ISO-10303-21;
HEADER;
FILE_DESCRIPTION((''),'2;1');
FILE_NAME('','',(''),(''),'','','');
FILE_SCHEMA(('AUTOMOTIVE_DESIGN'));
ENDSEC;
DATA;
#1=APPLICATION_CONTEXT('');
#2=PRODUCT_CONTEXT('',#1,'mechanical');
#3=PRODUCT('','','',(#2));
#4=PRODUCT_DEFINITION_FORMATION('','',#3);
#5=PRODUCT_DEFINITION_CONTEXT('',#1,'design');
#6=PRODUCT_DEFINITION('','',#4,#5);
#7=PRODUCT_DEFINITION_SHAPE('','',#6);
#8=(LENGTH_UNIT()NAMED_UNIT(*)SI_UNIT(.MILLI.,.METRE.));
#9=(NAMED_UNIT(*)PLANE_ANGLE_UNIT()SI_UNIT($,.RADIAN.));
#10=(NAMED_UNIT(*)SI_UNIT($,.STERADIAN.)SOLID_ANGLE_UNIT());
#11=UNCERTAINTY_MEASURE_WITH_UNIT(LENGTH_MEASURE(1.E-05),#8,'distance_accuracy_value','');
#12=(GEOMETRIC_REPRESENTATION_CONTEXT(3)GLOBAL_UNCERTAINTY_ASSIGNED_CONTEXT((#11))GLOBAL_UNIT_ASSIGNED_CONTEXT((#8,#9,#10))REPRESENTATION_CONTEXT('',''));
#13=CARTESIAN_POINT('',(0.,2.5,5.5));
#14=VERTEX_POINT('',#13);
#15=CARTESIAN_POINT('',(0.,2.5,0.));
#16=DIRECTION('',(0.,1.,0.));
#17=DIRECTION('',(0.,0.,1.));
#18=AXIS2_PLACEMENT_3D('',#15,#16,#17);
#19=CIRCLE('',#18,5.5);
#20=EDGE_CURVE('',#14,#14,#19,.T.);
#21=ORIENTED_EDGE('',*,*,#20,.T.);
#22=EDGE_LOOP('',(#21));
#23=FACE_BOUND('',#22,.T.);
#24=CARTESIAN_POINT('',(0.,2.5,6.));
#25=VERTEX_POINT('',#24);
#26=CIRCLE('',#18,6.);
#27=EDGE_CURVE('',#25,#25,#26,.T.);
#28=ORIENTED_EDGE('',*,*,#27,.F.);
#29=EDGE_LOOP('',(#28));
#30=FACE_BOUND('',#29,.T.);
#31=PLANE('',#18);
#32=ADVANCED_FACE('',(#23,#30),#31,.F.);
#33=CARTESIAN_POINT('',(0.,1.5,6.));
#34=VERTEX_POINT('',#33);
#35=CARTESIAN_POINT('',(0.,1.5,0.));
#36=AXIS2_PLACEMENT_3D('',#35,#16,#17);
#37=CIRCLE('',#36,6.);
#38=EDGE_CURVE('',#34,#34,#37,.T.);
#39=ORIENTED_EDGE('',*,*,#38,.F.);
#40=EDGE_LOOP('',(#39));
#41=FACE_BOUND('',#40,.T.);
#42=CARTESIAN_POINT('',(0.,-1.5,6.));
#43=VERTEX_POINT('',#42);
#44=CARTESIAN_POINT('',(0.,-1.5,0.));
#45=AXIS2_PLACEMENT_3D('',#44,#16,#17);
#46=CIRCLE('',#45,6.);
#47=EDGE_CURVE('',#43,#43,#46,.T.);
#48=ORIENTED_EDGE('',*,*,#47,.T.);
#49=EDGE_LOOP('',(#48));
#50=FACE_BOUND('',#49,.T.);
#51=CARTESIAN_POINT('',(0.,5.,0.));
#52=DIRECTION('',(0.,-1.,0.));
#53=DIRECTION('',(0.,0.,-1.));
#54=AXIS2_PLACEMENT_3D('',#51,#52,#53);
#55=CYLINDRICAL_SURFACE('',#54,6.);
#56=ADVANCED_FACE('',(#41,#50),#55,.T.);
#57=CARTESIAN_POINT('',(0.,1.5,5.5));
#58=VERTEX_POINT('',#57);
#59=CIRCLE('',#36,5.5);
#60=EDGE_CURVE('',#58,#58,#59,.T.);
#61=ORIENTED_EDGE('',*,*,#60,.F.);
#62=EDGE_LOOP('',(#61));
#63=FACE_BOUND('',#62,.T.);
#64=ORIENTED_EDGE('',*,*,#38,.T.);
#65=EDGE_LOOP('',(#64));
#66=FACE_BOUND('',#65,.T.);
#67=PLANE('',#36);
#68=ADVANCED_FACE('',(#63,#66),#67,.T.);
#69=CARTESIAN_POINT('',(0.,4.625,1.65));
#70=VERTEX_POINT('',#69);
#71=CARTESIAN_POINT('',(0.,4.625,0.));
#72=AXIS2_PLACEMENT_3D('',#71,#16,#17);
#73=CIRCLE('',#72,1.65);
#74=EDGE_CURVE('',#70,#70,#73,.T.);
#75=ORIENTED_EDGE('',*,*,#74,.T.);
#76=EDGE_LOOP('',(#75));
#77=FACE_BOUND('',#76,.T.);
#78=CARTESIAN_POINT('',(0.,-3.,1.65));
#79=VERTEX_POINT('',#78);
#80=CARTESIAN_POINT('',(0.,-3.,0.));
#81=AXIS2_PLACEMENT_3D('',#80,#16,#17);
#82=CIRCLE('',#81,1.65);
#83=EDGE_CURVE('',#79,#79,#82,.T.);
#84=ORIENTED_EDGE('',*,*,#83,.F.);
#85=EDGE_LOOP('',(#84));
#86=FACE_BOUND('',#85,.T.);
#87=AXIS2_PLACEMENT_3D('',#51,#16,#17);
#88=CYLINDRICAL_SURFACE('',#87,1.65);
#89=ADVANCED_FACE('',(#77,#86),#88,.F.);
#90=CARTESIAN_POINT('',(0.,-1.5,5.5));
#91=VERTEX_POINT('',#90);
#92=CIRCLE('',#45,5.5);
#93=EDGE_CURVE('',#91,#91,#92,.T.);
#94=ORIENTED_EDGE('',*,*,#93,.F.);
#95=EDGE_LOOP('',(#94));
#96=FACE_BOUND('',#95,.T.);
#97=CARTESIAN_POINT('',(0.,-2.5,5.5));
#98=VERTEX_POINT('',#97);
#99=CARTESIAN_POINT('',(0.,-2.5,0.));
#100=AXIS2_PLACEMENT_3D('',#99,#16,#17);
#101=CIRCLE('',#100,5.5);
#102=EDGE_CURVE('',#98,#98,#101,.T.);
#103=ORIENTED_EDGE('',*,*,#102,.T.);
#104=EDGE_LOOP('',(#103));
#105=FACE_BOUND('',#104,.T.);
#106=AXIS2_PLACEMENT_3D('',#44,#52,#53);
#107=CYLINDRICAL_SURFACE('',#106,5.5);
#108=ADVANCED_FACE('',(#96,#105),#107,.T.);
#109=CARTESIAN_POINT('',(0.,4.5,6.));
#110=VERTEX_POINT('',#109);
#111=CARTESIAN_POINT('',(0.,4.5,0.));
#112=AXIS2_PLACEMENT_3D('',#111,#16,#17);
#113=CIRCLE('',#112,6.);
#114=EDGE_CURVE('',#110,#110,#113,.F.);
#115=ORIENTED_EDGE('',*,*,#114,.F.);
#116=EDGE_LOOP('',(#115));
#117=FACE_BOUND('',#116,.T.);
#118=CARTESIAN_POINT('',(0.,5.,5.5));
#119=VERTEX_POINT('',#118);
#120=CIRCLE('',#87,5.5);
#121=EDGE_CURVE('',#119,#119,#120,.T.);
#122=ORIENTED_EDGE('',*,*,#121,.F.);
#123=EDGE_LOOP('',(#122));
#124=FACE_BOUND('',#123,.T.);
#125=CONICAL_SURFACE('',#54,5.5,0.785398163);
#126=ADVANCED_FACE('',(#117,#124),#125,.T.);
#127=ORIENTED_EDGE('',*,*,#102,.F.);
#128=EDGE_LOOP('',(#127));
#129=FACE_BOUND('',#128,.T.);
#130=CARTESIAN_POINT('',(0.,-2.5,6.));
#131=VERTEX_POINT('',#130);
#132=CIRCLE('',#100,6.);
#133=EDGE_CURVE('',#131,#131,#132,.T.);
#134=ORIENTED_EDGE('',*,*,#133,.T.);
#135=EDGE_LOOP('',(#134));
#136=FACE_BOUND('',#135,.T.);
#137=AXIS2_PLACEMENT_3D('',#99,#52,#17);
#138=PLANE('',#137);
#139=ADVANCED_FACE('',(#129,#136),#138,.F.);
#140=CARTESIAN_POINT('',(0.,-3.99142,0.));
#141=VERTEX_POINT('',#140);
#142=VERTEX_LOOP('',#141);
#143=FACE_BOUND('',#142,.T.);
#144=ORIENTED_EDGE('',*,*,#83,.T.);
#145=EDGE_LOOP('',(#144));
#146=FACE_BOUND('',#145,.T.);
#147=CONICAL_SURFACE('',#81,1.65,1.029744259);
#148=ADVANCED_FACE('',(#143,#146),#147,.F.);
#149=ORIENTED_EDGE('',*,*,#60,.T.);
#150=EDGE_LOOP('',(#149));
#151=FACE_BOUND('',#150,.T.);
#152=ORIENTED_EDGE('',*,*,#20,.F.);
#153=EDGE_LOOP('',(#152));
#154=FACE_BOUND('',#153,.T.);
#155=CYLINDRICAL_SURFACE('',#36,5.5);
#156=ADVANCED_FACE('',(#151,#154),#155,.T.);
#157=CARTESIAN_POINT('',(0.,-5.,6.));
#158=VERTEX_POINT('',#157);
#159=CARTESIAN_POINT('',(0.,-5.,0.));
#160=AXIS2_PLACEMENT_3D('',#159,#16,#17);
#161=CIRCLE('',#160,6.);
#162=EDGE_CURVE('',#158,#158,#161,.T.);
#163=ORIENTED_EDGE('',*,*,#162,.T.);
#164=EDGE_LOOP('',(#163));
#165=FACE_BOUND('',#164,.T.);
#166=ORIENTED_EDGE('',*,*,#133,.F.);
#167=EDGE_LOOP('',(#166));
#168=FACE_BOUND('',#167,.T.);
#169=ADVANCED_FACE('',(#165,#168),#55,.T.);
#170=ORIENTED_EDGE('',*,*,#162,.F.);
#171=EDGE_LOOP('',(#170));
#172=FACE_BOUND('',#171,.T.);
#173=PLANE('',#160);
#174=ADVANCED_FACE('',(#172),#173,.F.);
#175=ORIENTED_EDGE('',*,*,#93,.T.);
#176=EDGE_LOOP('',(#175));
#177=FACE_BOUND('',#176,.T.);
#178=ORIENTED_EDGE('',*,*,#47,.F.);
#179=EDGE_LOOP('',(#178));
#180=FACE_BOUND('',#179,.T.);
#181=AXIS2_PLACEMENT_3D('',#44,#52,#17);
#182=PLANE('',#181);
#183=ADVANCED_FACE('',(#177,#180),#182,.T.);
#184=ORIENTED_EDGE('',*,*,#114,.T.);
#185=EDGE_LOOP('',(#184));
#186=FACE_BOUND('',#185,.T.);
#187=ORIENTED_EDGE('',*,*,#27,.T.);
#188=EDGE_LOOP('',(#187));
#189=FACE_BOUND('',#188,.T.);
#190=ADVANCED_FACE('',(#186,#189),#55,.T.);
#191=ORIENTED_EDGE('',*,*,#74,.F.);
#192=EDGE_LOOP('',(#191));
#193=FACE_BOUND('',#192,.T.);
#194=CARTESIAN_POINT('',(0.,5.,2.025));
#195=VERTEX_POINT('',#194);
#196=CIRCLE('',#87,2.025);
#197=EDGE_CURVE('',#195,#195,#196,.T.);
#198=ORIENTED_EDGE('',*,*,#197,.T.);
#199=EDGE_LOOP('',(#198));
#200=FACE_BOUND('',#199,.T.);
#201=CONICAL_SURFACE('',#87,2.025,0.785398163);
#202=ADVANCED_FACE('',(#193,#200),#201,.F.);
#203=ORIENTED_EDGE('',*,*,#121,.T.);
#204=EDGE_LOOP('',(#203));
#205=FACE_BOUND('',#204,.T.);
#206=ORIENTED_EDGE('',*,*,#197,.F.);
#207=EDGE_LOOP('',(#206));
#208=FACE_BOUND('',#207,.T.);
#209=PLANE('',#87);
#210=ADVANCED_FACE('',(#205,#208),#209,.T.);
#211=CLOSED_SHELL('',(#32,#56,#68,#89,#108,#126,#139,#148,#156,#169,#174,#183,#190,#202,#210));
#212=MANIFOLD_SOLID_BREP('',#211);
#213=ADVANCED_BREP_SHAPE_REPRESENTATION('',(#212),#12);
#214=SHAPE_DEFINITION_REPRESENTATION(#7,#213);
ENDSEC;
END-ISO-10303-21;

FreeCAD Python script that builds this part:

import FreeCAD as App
import Part
import Sketcher
from FreeCAD import Vector
Q = App.Units.Quantity


def edges_at(feature, points):
    """Names of the edges that pass closest to the given points."""
    edges = feature.Shape.Edges
    near = lambda p: min(range(len(edges)), key=lambda i: edges[i].distToShape(Part.Vertex(*p))[0])
    return sorted({f"Edge{near(p) + 1}" for p in points})

doc = App.newDocument("Part")
body = doc.addObject("PartDesign::Body", "Body")

sketch1 = body.newObject("Sketcher::SketchObject", "Sketch")
sketch1.AttachmentSupport = (doc.getObject("XZ_Plane"), [""])
sketch1.MapMode = "FlatFace"
sketch1.addGeometry(Part.Circle(Vector(0, 0, 0), Vector(0, 0, 1), 6), False)
sketch1.addConstraint(Sketcher.Constraint("Coincident", 0, 3, -1, 1))
sketch1.addConstraint(Sketcher.Constraint("Diameter", 0, Q("12 mm")))
pad1 = body.newObject("PartDesign::Pad", "Pad")
pad1.Profile = sketch1
pad1.Length = 10
pad1.Midplane = True

sketch2 = body.newObject("Sketcher::SketchObject", "Sketch001")
sketch2.AttachmentSupport = (doc.getObject("XZ_Plane"), [""])
sketch2.MapMode = "FlatFace"
sketch2.AttachmentOffset = App.Placement(Vector(0, 0, -2.5), App.Rotation())
sketch2.addGeometry(Part.Circle(Vector(0, 0, 0), Vector(0, 0, 1), 6), False)
sketch2.addGeometry(Part.Circle(Vector(0, 0, 0), Vector(0, 0, 1), 6), False)
sketch2.addConstraint(Sketcher.Constraint("Coincident", 0, 3, -1, 1))
sketch2.addConstraint(Sketcher.Constraint("Coincident", 1, 3, -1, 1))
sketch2.addConstraint(Sketcher.Constraint("Diameter", 0, Q("12 mm")))
sketch2.addConstraint(Sketcher.Constraint("Diameter", 1, Q("11 mm")))
pocket1 = body.newObject("PartDesign::Pocket", "Pocket")
pocket1.Profile = sketch2
pocket1.Length = 1
pocket1.Reversed = True
doc.recompute()

mirrored = body.newObject("PartDesign::Mirrored", "Mirrored")
mirrored.Originals = [pocket1]
mirrored.MirrorPlane = (doc.getObject("XZ_Plane"), [""])
body.Tip = mirrored
doc.recompute()

chamfer = body.newObject("PartDesign::Chamfer", "Chamfer")
chamfer.Base = (mirrored, edges_at(mirrored, [(-6, 5, 0)]))
chamfer.Size = 0.5

sketch3 = body.newObject("Sketcher::SketchObject", "Sketch002")
sketch3.AttachmentSupport = (doc.getObject("XZ_Plane"), [""])
sketch3.MapMode = "FlatFace"
sketch3.AttachmentOffset = App.Placement(Vector(0, 0, -5), App.Rotation())
sketch3.addGeometry(Part.Circle(Vector(0, 0, 0), Vector(0, 0, 1), 1.6), False)
sketch3.addConstraint(Sketcher.Constraint("Coincident", 0, 3, -1, 1))
sketch3.addConstraint(Sketcher.Constraint("Diameter", 0, Q("3.3 mm")))
doc.recompute()
hole = body.newObject("PartDesign::Hole", "Hole")
hole.Profile = sketch3
hole.ThreadType = "None"
hole.Diameter = 3.3
hole.DepthType = "Dimension"
hole.Depth = 8
hole.DrillPoint = "Angled"
hole.DrillPointAngle = 118
hole.HoleCutType = "Countersink"
hole.HoleCutDiameter = 4.05
hole.HoleCutCountersinkAngle = 90
hole.Reversed = True

doc.recompute()
